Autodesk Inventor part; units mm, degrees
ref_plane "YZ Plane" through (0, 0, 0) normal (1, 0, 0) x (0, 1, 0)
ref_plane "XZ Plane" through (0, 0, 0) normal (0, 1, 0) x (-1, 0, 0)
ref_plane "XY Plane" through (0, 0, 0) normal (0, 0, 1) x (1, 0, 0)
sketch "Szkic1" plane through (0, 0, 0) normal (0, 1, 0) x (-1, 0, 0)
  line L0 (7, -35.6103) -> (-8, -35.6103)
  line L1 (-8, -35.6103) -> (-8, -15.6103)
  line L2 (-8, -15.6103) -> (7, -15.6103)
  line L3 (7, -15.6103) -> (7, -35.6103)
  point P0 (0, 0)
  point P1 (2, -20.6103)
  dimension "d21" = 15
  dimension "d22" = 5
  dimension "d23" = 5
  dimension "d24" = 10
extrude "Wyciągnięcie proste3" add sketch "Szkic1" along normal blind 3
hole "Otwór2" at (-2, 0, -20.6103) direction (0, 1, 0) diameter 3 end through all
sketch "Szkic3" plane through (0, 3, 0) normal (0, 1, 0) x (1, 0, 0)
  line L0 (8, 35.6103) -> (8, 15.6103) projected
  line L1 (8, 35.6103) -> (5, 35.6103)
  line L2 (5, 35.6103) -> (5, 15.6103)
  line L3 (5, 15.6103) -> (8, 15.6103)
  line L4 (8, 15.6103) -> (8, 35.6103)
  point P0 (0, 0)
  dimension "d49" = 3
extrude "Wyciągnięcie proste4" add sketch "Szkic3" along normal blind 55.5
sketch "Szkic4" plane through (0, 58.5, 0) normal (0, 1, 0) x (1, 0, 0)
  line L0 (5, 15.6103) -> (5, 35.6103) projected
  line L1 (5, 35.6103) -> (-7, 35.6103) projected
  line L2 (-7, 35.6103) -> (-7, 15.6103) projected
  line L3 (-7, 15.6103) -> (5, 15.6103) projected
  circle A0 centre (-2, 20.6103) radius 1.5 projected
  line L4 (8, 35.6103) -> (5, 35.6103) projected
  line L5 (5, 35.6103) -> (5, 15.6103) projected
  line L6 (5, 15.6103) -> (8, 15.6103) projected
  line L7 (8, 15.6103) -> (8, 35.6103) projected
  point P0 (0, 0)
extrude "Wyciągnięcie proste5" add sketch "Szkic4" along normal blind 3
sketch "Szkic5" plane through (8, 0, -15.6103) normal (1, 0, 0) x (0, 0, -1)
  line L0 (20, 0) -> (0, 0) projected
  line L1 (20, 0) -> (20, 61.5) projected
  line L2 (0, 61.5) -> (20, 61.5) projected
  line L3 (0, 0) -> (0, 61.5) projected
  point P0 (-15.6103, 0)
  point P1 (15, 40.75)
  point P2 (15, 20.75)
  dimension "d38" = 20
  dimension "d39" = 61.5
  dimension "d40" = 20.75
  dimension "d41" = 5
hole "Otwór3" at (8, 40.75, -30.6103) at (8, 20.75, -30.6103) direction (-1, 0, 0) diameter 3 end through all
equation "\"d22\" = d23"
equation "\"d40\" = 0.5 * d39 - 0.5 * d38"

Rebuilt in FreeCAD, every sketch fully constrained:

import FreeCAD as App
import Part
import Sketcher

V = App.Vector


def add_polygon(sketch, points):
    """Adds a closed chain of lines whose ends are joined by coincident constraints."""
    first, n = sketch.GeometryCount, len(points)
    for a, b in zip(points, points[1:] + points[:1]):
        sketch.addGeometry(Part.LineSegment(App.Vector(*a, 0), App.Vector(*b, 0)), False)
    for i in range(n):
        sketch.addConstraint(Sketcher.Constraint("Coincident", first + i, 2, first + (i + 1) % n, 1))

doc = App.newDocument("Part")
body = doc.addObject("PartDesign::Body", "Body")

sketch1 = body.newObject("Sketcher::SketchObject", "Sketch")
sketch1.AttachmentSupport = (doc.getObject("XZ_Plane"), [""])
sketch1.MapMode = "FlatFace"
add_polygon(sketch1, [(8, -36), (-7, -36), (-7, -16), (8, -16)])
sketch1.addConstraint(Sketcher.Constraint("Horizontal", 0))
sketch1.addConstraint(Sketcher.Constraint("Vertical", 1))
sketch1.addConstraint(Sketcher.Constraint("Horizontal", 2))
sketch1.addConstraint(Sketcher.Constraint("Vertical", 3))
sketch1.addConstraint(Sketcher.Constraint("DistanceX", 0, 2, 0, 1, 15.0))
sketch1.addConstraint(Sketcher.Constraint("DistanceY", 1, 1, 1, 2, 20.0))
sketch1.addConstraint(Sketcher.Constraint("DistanceX", 0, 2, -1, 1, 7.0))
sketch1.addConstraint(Sketcher.Constraint("DistanceY", 0, 2, -1, 1, 35.6103))
pad1 = body.newObject("PartDesign::Pad", "Pad")
pad1.Profile = sketch1
pad1.Length = 3
pad1.Reversed = True

sketch2 = body.newObject("Sketcher::SketchObject", "Sketch001")
sketch2.AttachmentSupport = (doc.getObject("XZ_Plane"), [""])
sketch2.MapMode = "FlatFace"
sketch2.addGeometry(Part.Circle(V(-2, -20.6, 0), V(0, 0, 1), 1.5), False)
sketch2.addConstraint(Sketcher.Constraint("Diameter", 0, 3.0))
sketch2.addConstraint(Sketcher.Constraint("DistanceX", 0, 3, -1, 1, 2.0))
sketch2.addConstraint(Sketcher.Constraint("DistanceY", 0, 3, -1, 1, 20.6103))
doc.recompute()
hole = body.newObject("PartDesign::Hole", "Hole")
hole.Profile = sketch2
hole.ThreadType = "None"
hole.Diameter = 3
hole.DepthType = "ThroughAll"

sketch3 = body.newObject("Sketcher::SketchObject", "Sketch002")
sketch3.AttachmentSupport = (doc.getObject("XZ_Plane"), [""])
sketch3.MapMode = "FlatFace"
sketch3.AttachmentOffset = App.Placement(V(0, 0, -3), App.Rotation())
add_polygon(sketch3, [(8, -15.6), (8, -35.6), (5, -35.6), (5, -15.6)])
sketch3.addConstraint(Sketcher.Constraint("Vertical", 0))
sketch3.addConstraint(Sketcher.Constraint("Horizontal", 1))
sketch3.addConstraint(Sketcher.Constraint("Vertical", 2))
sketch3.addConstraint(Sketcher.Constraint("Horizontal", 3))
sketch3.addConstraint(Sketcher.Constraint("DistanceX", 1, 2, 1, 1, 3.0))
sketch3.addConstraint(Sketcher.Constraint("DistanceY", 0, 2, 0, 1, 20.0))
sketch3.addConstraint(Sketcher.Constraint("DistanceX", -1, 1, 0, 2, 8.0))
sketch3.addConstraint(Sketcher.Constraint("DistanceY", 0, 2, -1, 1, 35.6103))
pad2 = body.newObject("PartDesign::Pad", "Pad001")
pad2.Profile = sketch3
pad2.Length = 55.5
pad2.Reversed = True

sketch4 = body.newObject("Sketcher::SketchObject", "Sketch003")
sketch4.AttachmentSupport = (doc.getObject("XZ_Plane"), [""])
sketch4.MapMode = "FlatFace"
sketch4.AttachmentOffset = App.Placement(V(0, 0, -58.5), App.Rotation())
add_polygon(sketch4, [(-7, -15.6), (8, -15.6), (8, -35.6), (-7, -35.6)])
sketch4.addGeometry(Part.Circle(V(-2, -20.6, 0), V(0, 0, 1), 1.5), False)
sketch4.addConstraint(Sketcher.Constraint("Horizontal", 0))
sketch4.addConstraint(Sketcher.Constraint("Vertical", 1))
sketch4.addConstraint(Sketcher.Constraint("Horizontal", 2))
sketch4.addConstraint(Sketcher.Constraint("Vertical", 3))
sketch4.addConstraint(Sketcher.Constraint("Diameter", 4, 3.0))
sketch4.addConstraint(Sketcher.Constraint("DistanceX", 0, 1, 0, 2, 15.0))
sketch4.addConstraint(Sketcher.Constraint("DistanceY", 1, 2, 1, 1, 20.0))
sketch4.addConstraint(Sketcher.Constraint("DistanceX", 4, 3, -1, 1, 2.0))
sketch4.addConstraint(Sketcher.Constraint("DistanceX", -1, 1, 0, 2, 8.0))
sketch4.addConstraint(Sketcher.Constraint("DistanceY", 4, 3, 0, 2, 5.0))
sketch4.addConstraint(Sketcher.Constraint("DistanceY", 4, 3, -1, 1, 20.6103))
pad3 = body.newObject("PartDesign::Pad", "Pad002")
pad3.Profile = sketch4
pad3.Length = 3
pad3.Reversed = True

sketch5 = body.newObject("Sketcher::SketchObject", "Sketch004")
sketch5.AttachmentSupport = (doc.getObject("YZ_Plane"), [""])
sketch5.MapMode = "FlatFace"
sketch5.AttachmentOffset = App.Placement(V(0, 0, 8), App.Rotation())
sketch5.addGeometry(Part.Circle(V(40.8, -30.6, 0), V(0, 0, 1), 1.5), False)
sketch5.addGeometry(Part.Circle(V(20.8, -30.6, 0), V(0, 0, 1), 1.5), False)
sketch5.addConstraint(Sketcher.Constraint("Equal", 0, 1))
sketch5.addConstraint(Sketcher.Constraint("Horizontal", 0, 3, 1, 3))
sketch5.addConstraint(Sketcher.Constraint("Diameter", 0, 3.0))
sketch5.addConstraint(Sketcher.Constraint("DistanceX", 1, 3, 0, 3, 20.0))
sketch5.addConstraint(Sketcher.Constraint("DistanceX", -1, 1, 0, 3, 40.75))
sketch5.addConstraint(Sketcher.Constraint("DistanceY", 0, 3, -1, 1, 30.6103))
doc.recompute()
hole2 = body.newObject("PartDesign::Hole", "Hole001")
hole2.Profile = sketch5
hole2.ThreadType = "None"
hole2.Diameter = 3
hole2.DepthType = "ThroughAll"

doc.recompute()
